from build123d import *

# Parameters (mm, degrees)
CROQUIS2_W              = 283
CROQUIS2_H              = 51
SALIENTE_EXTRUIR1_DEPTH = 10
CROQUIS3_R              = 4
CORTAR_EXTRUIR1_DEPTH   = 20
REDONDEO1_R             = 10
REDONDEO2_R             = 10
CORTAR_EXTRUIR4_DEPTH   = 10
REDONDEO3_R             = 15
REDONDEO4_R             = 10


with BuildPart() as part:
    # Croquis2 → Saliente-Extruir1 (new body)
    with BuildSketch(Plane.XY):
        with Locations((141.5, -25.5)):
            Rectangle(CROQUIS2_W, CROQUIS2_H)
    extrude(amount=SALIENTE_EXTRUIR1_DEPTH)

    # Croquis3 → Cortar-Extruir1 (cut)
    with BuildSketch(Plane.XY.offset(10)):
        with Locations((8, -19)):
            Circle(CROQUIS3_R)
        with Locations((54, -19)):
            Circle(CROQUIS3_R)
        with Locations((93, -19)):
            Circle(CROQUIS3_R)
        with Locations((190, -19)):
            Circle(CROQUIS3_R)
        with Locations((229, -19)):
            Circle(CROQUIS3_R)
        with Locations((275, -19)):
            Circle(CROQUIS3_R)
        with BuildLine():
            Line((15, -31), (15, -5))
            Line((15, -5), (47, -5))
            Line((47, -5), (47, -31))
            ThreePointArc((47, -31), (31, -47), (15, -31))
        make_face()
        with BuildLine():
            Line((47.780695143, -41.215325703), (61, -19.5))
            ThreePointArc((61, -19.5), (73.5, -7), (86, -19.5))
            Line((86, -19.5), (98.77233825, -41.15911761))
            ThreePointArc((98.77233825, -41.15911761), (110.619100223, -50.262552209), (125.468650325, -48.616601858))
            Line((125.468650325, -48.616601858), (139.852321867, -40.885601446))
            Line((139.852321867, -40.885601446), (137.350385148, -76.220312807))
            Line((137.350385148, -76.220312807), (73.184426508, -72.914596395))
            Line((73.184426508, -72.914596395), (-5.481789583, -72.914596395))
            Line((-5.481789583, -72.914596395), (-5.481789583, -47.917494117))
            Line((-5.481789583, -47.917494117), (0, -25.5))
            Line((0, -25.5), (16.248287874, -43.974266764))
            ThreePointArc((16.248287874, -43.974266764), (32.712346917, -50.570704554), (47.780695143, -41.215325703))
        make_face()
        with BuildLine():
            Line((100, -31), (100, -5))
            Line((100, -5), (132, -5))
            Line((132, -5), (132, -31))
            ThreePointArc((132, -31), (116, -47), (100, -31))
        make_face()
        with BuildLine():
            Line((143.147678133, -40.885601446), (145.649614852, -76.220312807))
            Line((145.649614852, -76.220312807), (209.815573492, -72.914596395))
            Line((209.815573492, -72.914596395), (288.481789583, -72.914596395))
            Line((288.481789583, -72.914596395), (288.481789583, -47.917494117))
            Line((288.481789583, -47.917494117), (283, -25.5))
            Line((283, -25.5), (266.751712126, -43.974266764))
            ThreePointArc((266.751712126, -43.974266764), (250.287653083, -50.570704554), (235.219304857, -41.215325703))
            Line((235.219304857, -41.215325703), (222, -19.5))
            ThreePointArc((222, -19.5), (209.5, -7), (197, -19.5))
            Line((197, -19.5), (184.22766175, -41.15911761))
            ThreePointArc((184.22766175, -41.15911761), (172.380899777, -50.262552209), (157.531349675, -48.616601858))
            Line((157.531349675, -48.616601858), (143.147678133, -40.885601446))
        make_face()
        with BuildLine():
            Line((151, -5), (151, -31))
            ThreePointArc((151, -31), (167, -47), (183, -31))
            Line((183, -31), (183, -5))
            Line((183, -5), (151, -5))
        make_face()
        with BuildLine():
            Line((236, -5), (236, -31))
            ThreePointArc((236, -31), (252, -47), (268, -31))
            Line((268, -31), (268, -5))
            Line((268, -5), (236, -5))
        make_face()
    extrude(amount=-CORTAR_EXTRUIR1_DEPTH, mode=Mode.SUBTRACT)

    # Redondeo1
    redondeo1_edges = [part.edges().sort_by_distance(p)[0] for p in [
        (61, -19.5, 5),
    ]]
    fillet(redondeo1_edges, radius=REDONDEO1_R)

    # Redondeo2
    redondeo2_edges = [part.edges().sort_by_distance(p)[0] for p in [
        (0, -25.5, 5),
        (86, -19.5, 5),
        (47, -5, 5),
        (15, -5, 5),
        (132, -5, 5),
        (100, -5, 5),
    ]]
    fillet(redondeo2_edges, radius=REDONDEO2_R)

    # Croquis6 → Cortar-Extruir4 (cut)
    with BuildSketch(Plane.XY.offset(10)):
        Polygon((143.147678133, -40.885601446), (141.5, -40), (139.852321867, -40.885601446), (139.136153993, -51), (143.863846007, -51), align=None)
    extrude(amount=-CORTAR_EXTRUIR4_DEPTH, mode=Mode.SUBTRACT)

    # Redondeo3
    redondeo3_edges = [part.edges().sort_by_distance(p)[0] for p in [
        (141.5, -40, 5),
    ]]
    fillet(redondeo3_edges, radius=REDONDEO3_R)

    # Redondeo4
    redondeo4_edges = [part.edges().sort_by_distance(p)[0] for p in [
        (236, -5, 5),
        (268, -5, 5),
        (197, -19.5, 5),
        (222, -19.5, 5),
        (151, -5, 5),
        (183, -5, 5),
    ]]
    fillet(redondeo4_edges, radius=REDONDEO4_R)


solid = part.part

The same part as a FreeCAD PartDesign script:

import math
import FreeCAD as App
import Part
import Sketcher
from FreeCAD import Vector


def edges_at(feature, points):
    """Names of the edges that pass closest to the given points."""
    edges = feature.Shape.Edges
    near = lambda p: min(range(len(edges)), key=lambda i: edges[i].distToShape(Part.Vertex(*p))[0])
    return sorted({f"Edge{near(p) + 1}" for p in points})


def add_polygon(sketch, points):
    """Adds a closed chain of lines whose ends are joined by coincident constraints."""
    first, n = sketch.GeometryCount, len(points)
    for a, b in zip(points, points[1:] + points[:1]):
        sketch.addGeometry(Part.LineSegment(App.Vector(*a, 0), App.Vector(*b, 0)), False)
    for i in range(n):
        sketch.addConstraint(Sketcher.Constraint("Coincident", first + i, 2, first + (i + 1) % n, 1))

doc = App.newDocument("Part")
body = doc.addObject("PartDesign::Body", "Body")

# Sketch on XY plane
sketch1 = body.newObject("Sketcher::SketchObject", "Sketch")
sketch1.AttachmentSupport = (doc.getObject("XY_Plane"), [""])
sketch1.MapMode = "FlatFace"
add_polygon(sketch1, [(0, 0), (0, -51), (283, -51), (283, 0)])  # lines 0-3
sketch1.addConstraint(Sketcher.Constraint("Vertical", 0))
sketch1.addConstraint(Sketcher.Constraint("Horizontal", 1))
sketch1.addConstraint(Sketcher.Constraint("Vertical", 2))
sketch1.addConstraint(Sketcher.Constraint("Horizontal", 3))
sketch1.addConstraint(Sketcher.Constraint("Coincident", 3, 2, -1, 1))
sketch1.addConstraint(Sketcher.Constraint("DistanceX", 1, 1, 1, 2, 283.0))
sketch1.addConstraint(Sketcher.Constraint("DistanceY", 0, 2, 0, 1, 51.0))
pad1 = body.newObject("PartDesign::Pad", "Pad")
pad1.Profile = sketch1
pad1.Length = 10

# Sketch on XY plane
sketch2 = body.newObject("Sketcher::SketchObject", "Sketch001")
sketch2.AttachmentSupport = (doc.getObject("XY_Plane"), [""])
sketch2.MapMode = "FlatFace"
sketch2.AttachmentOffset = App.Placement(Vector(0, 0, 10), App.Rotation())
sketch2.addGeometry(Part.Circle(Vector(8, -19, 0), Vector(0, 0, 1), 4), False)
sketch2.addGeometry(Part.Circle(Vector(54, -19, 0), Vector(0, 0, 1), 4), False)
sketch2.addGeometry(Part.Circle(Vector(93, -19, 0), Vector(0, 0, 1), 4), False)
sketch2.addGeometry(Part.Circle(Vector(190, -19, 0), Vector(0, 0, 1), 4), False)
sketch2.addGeometry(Part.Circle(Vector(229, -19, 0), Vector(0, 0, 1), 4), False)
sketch2.addGeometry(Part.Circle(Vector(275, -19, 0), Vector(0, 0, 1), 4), False)
sketch2.addGeometry(Part.LineSegment(Vector(15, -5, 0), Vector(15, -31, 0)), False)
sketch2.addGeometry(Part.ArcOfCircle(Part.Circle(Vector(31, -31, 0), Vector(0, 0, 1), 16), math.radians(180), math.radians(360)), False)
sketch2.addGeometry(Part.LineSegment(Vector(47, -31, 0), Vector(47, -5, 0)), False)
sketch2.addGeometry(Part.LineSegment(Vector(47, -5, 0), Vector(15, -5, 0)), False)
sketch2.addGeometry(Part.LineSegment(Vector(61, -19.5, 0), Vector(47.8, -41.2, 0)), False)
sketch2.addGeometry(Part.ArcOfCircle(Part.Circle(Vector(31, -31, 0), Vector(0, 0, 1), 19.6), math.radians(-139), math.radians(-31)), False)
sketch2.addGeometry(Part.LineSegment(Vector(16.2, -44, 0), Vector(0, -25.5, 0)), False)
sketch2.addGeometry(Part.LineSegment(Vector(0, -25.5, 0), Vector(-5.5, -47.9, 0)), False)
sketch2.addGeometry(Part.LineSegment(Vector(-5.5, -47.9, 0), Vector(-5.5, -72.9, 0)), False)
sketch2.addGeometry(Part.LineSegment(Vector(-5.5, -72.9, 0), Vector(73.2, -72.9, 0)), False)
sketch2.addGeometry(Part.LineSegment(Vector(73.2, -72.9, 0), Vector(137.4, -76.2, 0)), False)
sketch2.addGeometry(Part.LineSegment(Vector(137.4, -76.2, 0), Vector(139.9, -40.9, 0)), False)
sketch2.addGeometry(Part.LineSegment(Vector(139.9, -40.9, 0), Vector(125.5, -48.6, 0)), False)
sketch2.addGeometry(Part.ArcOfCircle(Part.Circle(Vector(116, -31, 0), Vector(0, 0, 1), 20), math.radians(-149), math.radians(-62)), False)
sketch2.addGeometry(Part.LineSegment(Vector(98.8, -41.2, 0), Vector(86, -19.5, 0)), False)
sketch2.addGeometry(Part.ArcOfCircle(Part.Circle(Vector(73.5, -19.5, 0), Vector(0, 0, 1), 12.5), math.radians(0), math.radians(180)), False)
sketch2.addGeometry(Part.LineSegment(Vector(100, -5, 0), Vector(100, -31, 0)), False)
sketch2.addGeometry(Part.ArcOfCircle(Part.Circle(Vector(116, -31, 0), Vector(0, 0, 1), 16), math.radians(180), math.radians(360)), False)
sketch2.addGeometry(Part.LineSegment(Vector(132, -31, 0), Vector(132, -5, 0)), False)
sketch2.addGeometry(Part.LineSegment(Vector(132, -5, 0), Vector(100, -5, 0)), False)
sketch2.addGeometry(Part.LineSegment(Vector(143.1, -40.9, 0), Vector(145.6, -76.2, 0)), False)
sketch2.addGeometry(Part.LineSegment(Vector(145.6, -76.2, 0), Vector(209.8, -72.9, 0)), False)
sketch2.addGeometry(Part.LineSegment(Vector(209.8, -72.9, 0), Vector(288.5, -72.9, 0)), False)
sketch2.addGeometry(Part.LineSegment(Vector(288.5, -72.9, 0), Vector(288.5, -47.9, 0)), False)
sketch2.addGeometry(Part.LineSegment(Vector(288.5, -47.9, 0), Vector(283, -25.5, 0)), False)
sketch2.addGeometry(Part.LineSegment(Vector(283, -25.5, 0), Vector(266.8, -44, 0)), False)
sketch2.addGeometry(Part.ArcOfCircle(Part.Circle(Vector(252, -31, 0), Vector(0, 0, 1), 19.6), math.radians(-149), math.radians(-41)), False)
sketch2.addGeometry(Part.LineSegment(Vector(235.2, -41.2, 0), Vector(222, -19.5, 0)), False)
sketch2.addGeometry(Part.ArcOfCircle(Part.Circle(Vector(209.5, -19.5, 0), Vector(0, 0, 1), 12.5), math.radians(0), math.radians(180)), False)
sketch2.addGeometry(Part.LineSegment(Vector(197, -19.5, 0), Vector(184.2, -41.2, 0)), False)
sketch2.addGeometry(Part.ArcOfCircle(Part.Circle(Vector(167, -31, 0), Vector(0, 0, 1), 20), math.radians(-118), math.radians(-31)), False)
sketch2.addGeometry(Part.LineSegment(Vector(157.5, -48.6, 0), Vector(143.1, -40.9, 0)), False)
sketch2.addGeometry(Part.LineSegment(Vector(151, -5, 0), Vector(151, -31, 0)), False)
sketch2.addGeometry(Part.ArcOfCircle(Part.Circle(Vector(167, -31, 0), Vector(0, 0, 1), 16), math.radians(180), math.radians(360)), False)
sketch2.addGeometry(Part.LineSegment(Vector(183, -31, 0), Vector(183, -5, 0)), False)
sketch2.addGeometry(Part.LineSegment(Vector(183, -5, 0), Vector(151, -5, 0)), False)
sketch2.addGeometry(Part.LineSegment(Vector(236, -5, 0), Vector(236, -31, 0)), False)
sketch2.addGeometry(Part.ArcOfCircle(Part.Circle(Vector(252, -31, 0), Vector(0, 0, 1), 16), math.radians(180), math.radians(360)), False)
sketch2.addGeometry(Part.LineSegment(Vector(268, -31, 0), Vector(268, -5, 0)), False)
sketch2.addGeometry(Part.LineSegment(Vector(268, -5, 0), Vector(236, -5, 0)), False)
sketch2.addConstraint(Sketcher.Constraint("Tangent", 6, 2, 7, 1))
sketch2.addConstraint(Sketcher.Constraint("Tangent", 7, 2, 8, 1))
sketch2.addConstraint(Sketcher.Constraint("Coincident", 8, 2, 9, 1))
sketch2.addConstraint(Sketcher.Constraint("Coincident", 9, 2, 6, 1))
sketch2.addConstraint(Sketcher.Constraint("Tangent", 10, 2, 11, 2))
sketch2.addConstraint(Sketcher.Constraint("Tangent", 11, 1, 12, 1))
sketch2.addConstraint(Sketcher.Constraint("Coincident", 12, 2, 13, 1))
sketch2.addConstraint(Sketcher.Constraint("Coincident", 13, 2, 14, 1))
sketch2.addConstraint(Sketcher.Constraint("Coincident", 14, 2, 15, 1))
sketch2.addConstraint(Sketcher.Constraint("Coincident", 15, 2, 16, 1))
sketch2.addConstraint(Sketcher.Constraint("Coincident", 16, 2, 17, 1))
sketch2.addConstraint(Sketcher.Constraint("Coincident", 17, 2, 18, 1))
sketch2.addConstraint(Sketcher.Constraint("Tangent", 18, 2, 19, 2))
sketch2.addConstraint(Sketcher.Constraint("Tangent", 19, 1, 20, 1))
sketch2.addConstraint(Sketcher.Constraint("Coincident", 20, 2, 21, 1))
sketch2.addConstraint(Sketcher.Constraint("Coincident", 21, 2, 10, 1))
sketch2.addConstraint(Sketcher.Constraint("Tangent", 22, 2, 23, 1))
sketch2.addConstraint(Sketcher.Constraint("Tangent", 23, 2, 24, 1))
sketch2.addConstraint(Sketcher.Constraint("Coincident", 24, 2, 25, 1))
sketch2.addConstraint(Sketcher.Constraint("Coincident", 25, 2, 22, 1))
sketch2.addConstraint(Sketcher.Constraint("Coincident", 26, 2, 27, 1))
sketch2.addConstraint(Sketcher.Constraint("Coincident", 27, 2, 28, 1))
sketch2.addConstraint(Sketcher.Constraint("Coincident", 28, 2, 29, 1))
sketch2.addConstraint(Sketcher.Constraint("Coincident", 29, 2, 30, 1))
sketch2.addConstraint(Sketcher.Constraint("Coincident", 30, 2, 31, 1))
sketch2.addConstraint(Sketcher.Constraint("Tangent", 31, 2, 32, 2))
sketch2.addConstraint(Sketcher.Constraint("Tangent", 32, 1, 33, 1))
sketch2.addConstraint(Sketcher.Constraint("Coincident", 33, 2, 34, 1))
sketch2.addConstraint(Sketcher.Constraint("Coincident", 34, 2, 35, 1))
sketch2.addConstraint(Sketcher.Constraint("Tangent", 35, 2, 36, 2))
sketch2.addConstraint(Sketcher.Constraint("Tangent", 36, 1, 37, 1))
sketch2.addConstraint(Sketcher.Constraint("Coincident", 37, 2, 26, 1))
sketch2.addConstraint(Sketcher.Constraint("Tangent", 38, 2, 39, 1))
sketch2.addConstraint(Sketcher.Constraint("Tangent", 39, 2, 40, 1))
sketch2.addConstraint(Sketcher.Constraint("Coincident", 40, 2, 41, 1))
sketch2.addConstraint(Sketcher.Constraint("Coincident", 41, 2, 38, 1))
sketch2.addConstraint(Sketcher.Constraint("Tangent", 42, 2, 43, 1))
sketch2.addConstraint(Sketcher.Constraint("Tangent", 43, 2, 44, 1))
sketch2.addConstraint(Sketcher.Constraint("Coincident", 44, 2, 45, 1))
sketch2.addConstraint(Sketcher.Constraint("Coincident", 45, 2, 42, 1))
sketch2.addConstraint(Sketcher.Constraint("Vertical", 6))
sketch2.addConstraint(Sketcher.Constraint("Vertical", 8))
sketch2.addConstraint(Sketcher.Constraint("Horizontal", 9))
sketch2.addConstraint(Sketcher.Constraint("Vertical", 14))
sketch2.addConstraint(Sketcher.Constraint("Horizontal", 15))
sketch2.addConstraint(Sketcher.Constraint("Vertical", 22))
sketch2.addConstraint(Sketcher.Constraint("Vertical", 24))
sketch2.addConstraint(Sketcher.Constraint("Horizontal", 25))
sketch2.addConstraint(Sketcher.Constraint("Horizontal", 28))
sketch2.addConstraint(Sketcher.Constraint("Vertical", 29))
sketch2.addConstraint(Sketcher.Constraint("Vertical", 38))
sketch2.addConstraint(Sketcher.Constraint("Vertical", 40))
sketch2.addConstraint(Sketcher.Constraint("Horizontal", 41))
sketch2.addConstraint(Sketcher.Constraint("Vertical", 42))
sketch2.addConstraint(Sketcher.Constraint("Vertical", 44))
sketch2.addConstraint(Sketcher.Constraint("Horizontal", 45))
sketch2.addConstraint(Sketcher.Constraint("Coincident", 11, 3, 7, 3))
sketch2.addConstraint(Sketcher.Constraint("Coincident", 23, 3, 19, 3))
sketch2.addConstraint(Sketcher.Constraint("Coincident", 39, 3, 36, 3))
sketch2.addConstraint(Sketcher.Constraint("Coincident", 43, 3, 32, 3))
sketch2.addConstraint(Sketcher.Constraint("Equal", 0, 1))
sketch2.addConstraint(Sketcher.Constraint("Equal", 1, 2))
sketch2.addConstraint(Sketcher.Constraint("Equal", 2, 3))
sketch2.addConstraint(Sketcher.Constraint("Equal", 3, 4))
sketch2.addConstraint(Sketcher.Constraint("Equal", 4, 5))
sketch2.addConstraint(Sketcher.Constraint("Equal", 7, 23))
sketch2.addConstraint(Sketcher.Constraint("Equal", 11, 32))
sketch2.addConstraint(Sketcher.Constraint("Equal", 21, 34))
sketch2.addConstraint(Sketcher.Constraint("Equal", 19, 36))
sketch2.addConstraint(Sketcher.Constraint("Equal", 23, 39))
sketch2.addConstraint(Sketcher.Constraint("Equal", 39, 43))
sketch2.addConstraint(Sketcher.Constraint("PointOnObject", 12, 2, -2))
sketch2.addConstraint(Sketcher.Constraint("Horizontal", 0, 3, 1, 3))
sketch2.addConstraint(Sketcher.Constraint("Horizontal", 1, 3, 2, 3))
sketch2.addConstraint(Sketcher.Constraint("Horizontal", 2, 3, 3, 3))
sketch2.addConstraint(Sketcher.Constraint("Horizontal", 3, 3, 4, 3))
sketch2.addConstraint(Sketcher.Constraint("Horizontal", 4, 3, 5, 3))
sketch2.addConstraint(Sketcher.Constraint("Horizontal", 11, 3, 19, 3))
sketch2.addConstraint(Sketcher.Constraint("Horizontal", 23, 3, 32, 3))
sketch2.addConstraint(Sketcher.Constraint("Horizontal", 21, 3, 34, 3))
sketch2.addConstraint(Sketcher.Constraint("Horizontal", 32, 3, 36, 3))
sketch2.addConstraint(Sketcher.Constraint("Horizontal", 34, 3, 20, 2))
sketch2.addConstraint(Sketcher.Constraint("Horizontal", 20, 2, 21, 2))
sketch2.addConstraint(Sketcher.Constraint("Horizontal", 9, 2, 24, 2))
sketch2.addConstraint(Sketcher.Constraint("Horizontal", 16, 2, 26, 2))
sketch2.addConstraint(Sketcher.Constraint("Horizontal", 15, 2, 27, 2))
sketch2.addConstraint(Sketcher.Constraint("Horizontal", 13, 2, 29, 2))
sketch2.addConstraint(Sketcher.Constraint("Horizontal", 12, 2, 30, 2))
sketch2.addConstraint(Sketcher.Constraint("Horizontal", 11, 1, 31, 2))
sketch2.addConstraint(Sketcher.Constraint("Horizontal", 10, 2, 32, 1))
sketch2.addConstraint(Sketcher.Constraint("Horizontal", 21, 2, 33, 2))
sketch2.addConstraint(Sketcher.Constraint("Horizontal", 33, 2, 34, 2))
sketch2.addConstraint(Sketcher.Constraint("Horizontal", 19, 1, 35, 2))
sketch2.addConstraint(Sketcher.Constraint("Horizontal", 18, 2, 36, 1))
sketch2.addConstraint(Sketcher.Constraint("Horizontal", 17, 2, 37, 2))
sketch2.addConstraint(Sketcher.Constraint("Horizontal", 25, 2, 40, 2))
sketch2.addConstraint(Sketcher.Constraint("Horizontal", 41, 2, 44, 2))
sketch2.addConstraint(Sketcher.Constraint("Equal", 15, 28))
sketch2.addConstraint(Sketcher.Constraint("Equal", 17, 26))
sketch2.addConstraint(Sketcher.Constraint("Equal", 16, 27))
sketch2.addConstraint(Sketcher.Constraint("Diameter", 0, 8.0))
sketch2.addConstraint(Sketcher.Constraint("Radius", 7, 16.0))
sketch2.addConstraint(Sketcher.Constraint("Radius", 19, 20.0))
sketch2.addConstraint(Sketcher.Constraint("Radius", 21, 12.5))
sketch2.addConstraint(Sketcher.Constraint("DistanceY", 6, 2, 6, 1, 26.0))
sketch2.addConstraint(Sketcher.Constraint("DistanceX", -1, 1, 0, 3, 8.0))
sketch2.addConstraint(Sketcher.Constraint("DistanceY", 0, 3, -1, 1, 19.0))
sketch2.addConstraint(Sketcher.Constraint("DistanceX", -1, 1, 1, 3, 54.0))
sketch2.addConstraint(Sketcher.Constraint("DistanceX", -1, 1, 2, 3, 93.0))
sketch2.addConstraint(Sketcher.Constraint("DistanceX", -1, 1, 3, 3, 190.0))
sketch2.addConstraint(Sketcher.Constraint("DistanceX", -1, 1, 4, 3, 229.0))
sketch2.addConstraint(Sketcher.Constraint("DistanceX", -1, 1, 5, 3, 275.0))
sketch2.addConstraint(Sketcher.Constraint("DistanceX", -1, 1, 7, 3, 31.0))
sketch2.addConstraint(Sketcher.Constraint("DistanceY", 7, 3, -1, 1, 31.0))
sketch2.addConstraint(Sketcher.Constraint("DistanceX", -1, 1, 19, 3, 116.0))
sketch2.addConstraint(Sketcher.Constraint("DistanceX", -1, 1, 32, 3, 252.0))
sketch2.addConstraint(Sketcher.Constraint("DistanceX", -1, 1, 20, 2, 86.0))
sketch2.addConstraint(Sketcher.Constraint("DistanceY", 21, 3, -1, 1, 19.5))
sketch2.addConstraint(Sketcher.Constraint("DistanceY", 12, 2, -1, 1, 25.5))
sketch2.addConstraint(Sketcher.Constraint("Distance", 13, 23.077999))
sketch2.addConstraint(Sketcher.Constraint("Radius", 11, 19.645473))
sketch2.addConstraint(Sketcher.Constraint("DistanceY", 18, 2, 17, 2, 7.731))
sketch2.addConstraint(Sketcher.Constraint("DistanceY", 17, 2, -1, 1, 40.885601))
sketch2.addConstraint(Sketcher.Constraint("DistanceX", 15, 1, 15, 2, 78.666216))
sketch2.addConstraint(Sketcher.Constraint("DistanceY", 14, 2, 14, 1, 24.997102))
sketch2.addConstraint(Sketcher.Constraint("DistanceX", 13, 2, -1, 1, 5.48179))
sketch2.addConstraint(Sketcher.Constraint("DistanceX", 15, 2, 16, 2, 64.165959))
sketch2.addConstraint(Sketcher.Constraint("DistanceY", 16, 2, 17, 2, 35.334711))
pocket1 = body.newObject("PartDesign::Pocket", "Pocket")
pocket1.Profile = sketch2
pocket1.Length = 20
doc.recompute()

fillet = body.newObject("PartDesign::Fillet", "Fillet")
fillet.Base = (pocket1, edges_at(pocket1, [(61, -19.5, 5)]))
fillet.Radius = 10
doc.recompute()

fillet2 = body.newObject("PartDesign::Fillet", "Fillet001")
fillet2.Base = (fillet, edges_at(fillet, [
    (0, -25.5, 5),
    (86, -19.5, 5),
    (47, -5, 5),
    (15, -5, 5),
    (132, -5, 5),
    (100, -5, 5),
]))
fillet2.Radius = 10

# Sketch on XY plane
sketch3 = body.newObject("Sketcher::SketchObject", "Sketch002")
sketch3.AttachmentSupport = (doc.getObject("XY_Plane"), [""])
sketch3.MapMode = "FlatFace"
sketch3.AttachmentOffset = App.Placement(Vector(0, 0, 10), App.Rotation())
add_polygon(sketch3, [(143.1, -40.9), (141.5, -40), (139.9, -40.9), (139.1, -51), (143.9, -51)])  # lines 0-4
sketch3.addConstraint(Sketcher.Constraint("Horizontal", 3))
sketch3.addConstraint(Sketcher.Constraint("Horizontal", 1, 2, 4, 2))
sketch3.addConstraint(Sketcher.Constraint("Equal", 0, 1))
sketch3.addConstraint(Sketcher.Constraint("Equal", 2, 4))
sketch3.addConstraint(Sketcher.Constraint("DistanceY", 0, 2, -1, 1, 40.0))
sketch3.addConstraint(Sketcher.Constraint("DistanceY", 2, 2, -1, 1, 51.0))
sketch3.addConstraint(Sketcher.Constraint("DistanceX", -1, 1, 0, 2, 141.5))
sketch3.addConstraint(Sketcher.Constraint("DistanceY", 1, 2, -1, 1, 40.885601))
sketch3.addConstraint(Sketcher.Constraint("Distance", 2, 10.139722))
sketch3.addConstraint(Sketcher.Constraint("DistanceX", 3, 1, 3, 2, 4.727692))
pocket2 = body.newObject("PartDesign::Pocket", "Pocket001")
pocket2.Profile = sketch3
pocket2.Length = 10
doc.recompute()

fillet3 = body.newObject("PartDesign::Fillet", "Fillet002")
fillet3.Base = (pocket2, edges_at(pocket2, [(141.5, -40, 5)]))
fillet3.Radius = 15
doc.recompute()

fillet4 = body.newObject("PartDesign::Fillet", "Fillet003")
fillet4.Base = (fillet3, edges_at(fillet3, [
    (236, -5, 5),
    (268, -5, 5),
    (197, -19.5, 5),
    (222, -19.5, 5),
    (151, -5, 5),
    (183, -5, 5),
]))
fillet4.Radius = 10

doc.recompute()
